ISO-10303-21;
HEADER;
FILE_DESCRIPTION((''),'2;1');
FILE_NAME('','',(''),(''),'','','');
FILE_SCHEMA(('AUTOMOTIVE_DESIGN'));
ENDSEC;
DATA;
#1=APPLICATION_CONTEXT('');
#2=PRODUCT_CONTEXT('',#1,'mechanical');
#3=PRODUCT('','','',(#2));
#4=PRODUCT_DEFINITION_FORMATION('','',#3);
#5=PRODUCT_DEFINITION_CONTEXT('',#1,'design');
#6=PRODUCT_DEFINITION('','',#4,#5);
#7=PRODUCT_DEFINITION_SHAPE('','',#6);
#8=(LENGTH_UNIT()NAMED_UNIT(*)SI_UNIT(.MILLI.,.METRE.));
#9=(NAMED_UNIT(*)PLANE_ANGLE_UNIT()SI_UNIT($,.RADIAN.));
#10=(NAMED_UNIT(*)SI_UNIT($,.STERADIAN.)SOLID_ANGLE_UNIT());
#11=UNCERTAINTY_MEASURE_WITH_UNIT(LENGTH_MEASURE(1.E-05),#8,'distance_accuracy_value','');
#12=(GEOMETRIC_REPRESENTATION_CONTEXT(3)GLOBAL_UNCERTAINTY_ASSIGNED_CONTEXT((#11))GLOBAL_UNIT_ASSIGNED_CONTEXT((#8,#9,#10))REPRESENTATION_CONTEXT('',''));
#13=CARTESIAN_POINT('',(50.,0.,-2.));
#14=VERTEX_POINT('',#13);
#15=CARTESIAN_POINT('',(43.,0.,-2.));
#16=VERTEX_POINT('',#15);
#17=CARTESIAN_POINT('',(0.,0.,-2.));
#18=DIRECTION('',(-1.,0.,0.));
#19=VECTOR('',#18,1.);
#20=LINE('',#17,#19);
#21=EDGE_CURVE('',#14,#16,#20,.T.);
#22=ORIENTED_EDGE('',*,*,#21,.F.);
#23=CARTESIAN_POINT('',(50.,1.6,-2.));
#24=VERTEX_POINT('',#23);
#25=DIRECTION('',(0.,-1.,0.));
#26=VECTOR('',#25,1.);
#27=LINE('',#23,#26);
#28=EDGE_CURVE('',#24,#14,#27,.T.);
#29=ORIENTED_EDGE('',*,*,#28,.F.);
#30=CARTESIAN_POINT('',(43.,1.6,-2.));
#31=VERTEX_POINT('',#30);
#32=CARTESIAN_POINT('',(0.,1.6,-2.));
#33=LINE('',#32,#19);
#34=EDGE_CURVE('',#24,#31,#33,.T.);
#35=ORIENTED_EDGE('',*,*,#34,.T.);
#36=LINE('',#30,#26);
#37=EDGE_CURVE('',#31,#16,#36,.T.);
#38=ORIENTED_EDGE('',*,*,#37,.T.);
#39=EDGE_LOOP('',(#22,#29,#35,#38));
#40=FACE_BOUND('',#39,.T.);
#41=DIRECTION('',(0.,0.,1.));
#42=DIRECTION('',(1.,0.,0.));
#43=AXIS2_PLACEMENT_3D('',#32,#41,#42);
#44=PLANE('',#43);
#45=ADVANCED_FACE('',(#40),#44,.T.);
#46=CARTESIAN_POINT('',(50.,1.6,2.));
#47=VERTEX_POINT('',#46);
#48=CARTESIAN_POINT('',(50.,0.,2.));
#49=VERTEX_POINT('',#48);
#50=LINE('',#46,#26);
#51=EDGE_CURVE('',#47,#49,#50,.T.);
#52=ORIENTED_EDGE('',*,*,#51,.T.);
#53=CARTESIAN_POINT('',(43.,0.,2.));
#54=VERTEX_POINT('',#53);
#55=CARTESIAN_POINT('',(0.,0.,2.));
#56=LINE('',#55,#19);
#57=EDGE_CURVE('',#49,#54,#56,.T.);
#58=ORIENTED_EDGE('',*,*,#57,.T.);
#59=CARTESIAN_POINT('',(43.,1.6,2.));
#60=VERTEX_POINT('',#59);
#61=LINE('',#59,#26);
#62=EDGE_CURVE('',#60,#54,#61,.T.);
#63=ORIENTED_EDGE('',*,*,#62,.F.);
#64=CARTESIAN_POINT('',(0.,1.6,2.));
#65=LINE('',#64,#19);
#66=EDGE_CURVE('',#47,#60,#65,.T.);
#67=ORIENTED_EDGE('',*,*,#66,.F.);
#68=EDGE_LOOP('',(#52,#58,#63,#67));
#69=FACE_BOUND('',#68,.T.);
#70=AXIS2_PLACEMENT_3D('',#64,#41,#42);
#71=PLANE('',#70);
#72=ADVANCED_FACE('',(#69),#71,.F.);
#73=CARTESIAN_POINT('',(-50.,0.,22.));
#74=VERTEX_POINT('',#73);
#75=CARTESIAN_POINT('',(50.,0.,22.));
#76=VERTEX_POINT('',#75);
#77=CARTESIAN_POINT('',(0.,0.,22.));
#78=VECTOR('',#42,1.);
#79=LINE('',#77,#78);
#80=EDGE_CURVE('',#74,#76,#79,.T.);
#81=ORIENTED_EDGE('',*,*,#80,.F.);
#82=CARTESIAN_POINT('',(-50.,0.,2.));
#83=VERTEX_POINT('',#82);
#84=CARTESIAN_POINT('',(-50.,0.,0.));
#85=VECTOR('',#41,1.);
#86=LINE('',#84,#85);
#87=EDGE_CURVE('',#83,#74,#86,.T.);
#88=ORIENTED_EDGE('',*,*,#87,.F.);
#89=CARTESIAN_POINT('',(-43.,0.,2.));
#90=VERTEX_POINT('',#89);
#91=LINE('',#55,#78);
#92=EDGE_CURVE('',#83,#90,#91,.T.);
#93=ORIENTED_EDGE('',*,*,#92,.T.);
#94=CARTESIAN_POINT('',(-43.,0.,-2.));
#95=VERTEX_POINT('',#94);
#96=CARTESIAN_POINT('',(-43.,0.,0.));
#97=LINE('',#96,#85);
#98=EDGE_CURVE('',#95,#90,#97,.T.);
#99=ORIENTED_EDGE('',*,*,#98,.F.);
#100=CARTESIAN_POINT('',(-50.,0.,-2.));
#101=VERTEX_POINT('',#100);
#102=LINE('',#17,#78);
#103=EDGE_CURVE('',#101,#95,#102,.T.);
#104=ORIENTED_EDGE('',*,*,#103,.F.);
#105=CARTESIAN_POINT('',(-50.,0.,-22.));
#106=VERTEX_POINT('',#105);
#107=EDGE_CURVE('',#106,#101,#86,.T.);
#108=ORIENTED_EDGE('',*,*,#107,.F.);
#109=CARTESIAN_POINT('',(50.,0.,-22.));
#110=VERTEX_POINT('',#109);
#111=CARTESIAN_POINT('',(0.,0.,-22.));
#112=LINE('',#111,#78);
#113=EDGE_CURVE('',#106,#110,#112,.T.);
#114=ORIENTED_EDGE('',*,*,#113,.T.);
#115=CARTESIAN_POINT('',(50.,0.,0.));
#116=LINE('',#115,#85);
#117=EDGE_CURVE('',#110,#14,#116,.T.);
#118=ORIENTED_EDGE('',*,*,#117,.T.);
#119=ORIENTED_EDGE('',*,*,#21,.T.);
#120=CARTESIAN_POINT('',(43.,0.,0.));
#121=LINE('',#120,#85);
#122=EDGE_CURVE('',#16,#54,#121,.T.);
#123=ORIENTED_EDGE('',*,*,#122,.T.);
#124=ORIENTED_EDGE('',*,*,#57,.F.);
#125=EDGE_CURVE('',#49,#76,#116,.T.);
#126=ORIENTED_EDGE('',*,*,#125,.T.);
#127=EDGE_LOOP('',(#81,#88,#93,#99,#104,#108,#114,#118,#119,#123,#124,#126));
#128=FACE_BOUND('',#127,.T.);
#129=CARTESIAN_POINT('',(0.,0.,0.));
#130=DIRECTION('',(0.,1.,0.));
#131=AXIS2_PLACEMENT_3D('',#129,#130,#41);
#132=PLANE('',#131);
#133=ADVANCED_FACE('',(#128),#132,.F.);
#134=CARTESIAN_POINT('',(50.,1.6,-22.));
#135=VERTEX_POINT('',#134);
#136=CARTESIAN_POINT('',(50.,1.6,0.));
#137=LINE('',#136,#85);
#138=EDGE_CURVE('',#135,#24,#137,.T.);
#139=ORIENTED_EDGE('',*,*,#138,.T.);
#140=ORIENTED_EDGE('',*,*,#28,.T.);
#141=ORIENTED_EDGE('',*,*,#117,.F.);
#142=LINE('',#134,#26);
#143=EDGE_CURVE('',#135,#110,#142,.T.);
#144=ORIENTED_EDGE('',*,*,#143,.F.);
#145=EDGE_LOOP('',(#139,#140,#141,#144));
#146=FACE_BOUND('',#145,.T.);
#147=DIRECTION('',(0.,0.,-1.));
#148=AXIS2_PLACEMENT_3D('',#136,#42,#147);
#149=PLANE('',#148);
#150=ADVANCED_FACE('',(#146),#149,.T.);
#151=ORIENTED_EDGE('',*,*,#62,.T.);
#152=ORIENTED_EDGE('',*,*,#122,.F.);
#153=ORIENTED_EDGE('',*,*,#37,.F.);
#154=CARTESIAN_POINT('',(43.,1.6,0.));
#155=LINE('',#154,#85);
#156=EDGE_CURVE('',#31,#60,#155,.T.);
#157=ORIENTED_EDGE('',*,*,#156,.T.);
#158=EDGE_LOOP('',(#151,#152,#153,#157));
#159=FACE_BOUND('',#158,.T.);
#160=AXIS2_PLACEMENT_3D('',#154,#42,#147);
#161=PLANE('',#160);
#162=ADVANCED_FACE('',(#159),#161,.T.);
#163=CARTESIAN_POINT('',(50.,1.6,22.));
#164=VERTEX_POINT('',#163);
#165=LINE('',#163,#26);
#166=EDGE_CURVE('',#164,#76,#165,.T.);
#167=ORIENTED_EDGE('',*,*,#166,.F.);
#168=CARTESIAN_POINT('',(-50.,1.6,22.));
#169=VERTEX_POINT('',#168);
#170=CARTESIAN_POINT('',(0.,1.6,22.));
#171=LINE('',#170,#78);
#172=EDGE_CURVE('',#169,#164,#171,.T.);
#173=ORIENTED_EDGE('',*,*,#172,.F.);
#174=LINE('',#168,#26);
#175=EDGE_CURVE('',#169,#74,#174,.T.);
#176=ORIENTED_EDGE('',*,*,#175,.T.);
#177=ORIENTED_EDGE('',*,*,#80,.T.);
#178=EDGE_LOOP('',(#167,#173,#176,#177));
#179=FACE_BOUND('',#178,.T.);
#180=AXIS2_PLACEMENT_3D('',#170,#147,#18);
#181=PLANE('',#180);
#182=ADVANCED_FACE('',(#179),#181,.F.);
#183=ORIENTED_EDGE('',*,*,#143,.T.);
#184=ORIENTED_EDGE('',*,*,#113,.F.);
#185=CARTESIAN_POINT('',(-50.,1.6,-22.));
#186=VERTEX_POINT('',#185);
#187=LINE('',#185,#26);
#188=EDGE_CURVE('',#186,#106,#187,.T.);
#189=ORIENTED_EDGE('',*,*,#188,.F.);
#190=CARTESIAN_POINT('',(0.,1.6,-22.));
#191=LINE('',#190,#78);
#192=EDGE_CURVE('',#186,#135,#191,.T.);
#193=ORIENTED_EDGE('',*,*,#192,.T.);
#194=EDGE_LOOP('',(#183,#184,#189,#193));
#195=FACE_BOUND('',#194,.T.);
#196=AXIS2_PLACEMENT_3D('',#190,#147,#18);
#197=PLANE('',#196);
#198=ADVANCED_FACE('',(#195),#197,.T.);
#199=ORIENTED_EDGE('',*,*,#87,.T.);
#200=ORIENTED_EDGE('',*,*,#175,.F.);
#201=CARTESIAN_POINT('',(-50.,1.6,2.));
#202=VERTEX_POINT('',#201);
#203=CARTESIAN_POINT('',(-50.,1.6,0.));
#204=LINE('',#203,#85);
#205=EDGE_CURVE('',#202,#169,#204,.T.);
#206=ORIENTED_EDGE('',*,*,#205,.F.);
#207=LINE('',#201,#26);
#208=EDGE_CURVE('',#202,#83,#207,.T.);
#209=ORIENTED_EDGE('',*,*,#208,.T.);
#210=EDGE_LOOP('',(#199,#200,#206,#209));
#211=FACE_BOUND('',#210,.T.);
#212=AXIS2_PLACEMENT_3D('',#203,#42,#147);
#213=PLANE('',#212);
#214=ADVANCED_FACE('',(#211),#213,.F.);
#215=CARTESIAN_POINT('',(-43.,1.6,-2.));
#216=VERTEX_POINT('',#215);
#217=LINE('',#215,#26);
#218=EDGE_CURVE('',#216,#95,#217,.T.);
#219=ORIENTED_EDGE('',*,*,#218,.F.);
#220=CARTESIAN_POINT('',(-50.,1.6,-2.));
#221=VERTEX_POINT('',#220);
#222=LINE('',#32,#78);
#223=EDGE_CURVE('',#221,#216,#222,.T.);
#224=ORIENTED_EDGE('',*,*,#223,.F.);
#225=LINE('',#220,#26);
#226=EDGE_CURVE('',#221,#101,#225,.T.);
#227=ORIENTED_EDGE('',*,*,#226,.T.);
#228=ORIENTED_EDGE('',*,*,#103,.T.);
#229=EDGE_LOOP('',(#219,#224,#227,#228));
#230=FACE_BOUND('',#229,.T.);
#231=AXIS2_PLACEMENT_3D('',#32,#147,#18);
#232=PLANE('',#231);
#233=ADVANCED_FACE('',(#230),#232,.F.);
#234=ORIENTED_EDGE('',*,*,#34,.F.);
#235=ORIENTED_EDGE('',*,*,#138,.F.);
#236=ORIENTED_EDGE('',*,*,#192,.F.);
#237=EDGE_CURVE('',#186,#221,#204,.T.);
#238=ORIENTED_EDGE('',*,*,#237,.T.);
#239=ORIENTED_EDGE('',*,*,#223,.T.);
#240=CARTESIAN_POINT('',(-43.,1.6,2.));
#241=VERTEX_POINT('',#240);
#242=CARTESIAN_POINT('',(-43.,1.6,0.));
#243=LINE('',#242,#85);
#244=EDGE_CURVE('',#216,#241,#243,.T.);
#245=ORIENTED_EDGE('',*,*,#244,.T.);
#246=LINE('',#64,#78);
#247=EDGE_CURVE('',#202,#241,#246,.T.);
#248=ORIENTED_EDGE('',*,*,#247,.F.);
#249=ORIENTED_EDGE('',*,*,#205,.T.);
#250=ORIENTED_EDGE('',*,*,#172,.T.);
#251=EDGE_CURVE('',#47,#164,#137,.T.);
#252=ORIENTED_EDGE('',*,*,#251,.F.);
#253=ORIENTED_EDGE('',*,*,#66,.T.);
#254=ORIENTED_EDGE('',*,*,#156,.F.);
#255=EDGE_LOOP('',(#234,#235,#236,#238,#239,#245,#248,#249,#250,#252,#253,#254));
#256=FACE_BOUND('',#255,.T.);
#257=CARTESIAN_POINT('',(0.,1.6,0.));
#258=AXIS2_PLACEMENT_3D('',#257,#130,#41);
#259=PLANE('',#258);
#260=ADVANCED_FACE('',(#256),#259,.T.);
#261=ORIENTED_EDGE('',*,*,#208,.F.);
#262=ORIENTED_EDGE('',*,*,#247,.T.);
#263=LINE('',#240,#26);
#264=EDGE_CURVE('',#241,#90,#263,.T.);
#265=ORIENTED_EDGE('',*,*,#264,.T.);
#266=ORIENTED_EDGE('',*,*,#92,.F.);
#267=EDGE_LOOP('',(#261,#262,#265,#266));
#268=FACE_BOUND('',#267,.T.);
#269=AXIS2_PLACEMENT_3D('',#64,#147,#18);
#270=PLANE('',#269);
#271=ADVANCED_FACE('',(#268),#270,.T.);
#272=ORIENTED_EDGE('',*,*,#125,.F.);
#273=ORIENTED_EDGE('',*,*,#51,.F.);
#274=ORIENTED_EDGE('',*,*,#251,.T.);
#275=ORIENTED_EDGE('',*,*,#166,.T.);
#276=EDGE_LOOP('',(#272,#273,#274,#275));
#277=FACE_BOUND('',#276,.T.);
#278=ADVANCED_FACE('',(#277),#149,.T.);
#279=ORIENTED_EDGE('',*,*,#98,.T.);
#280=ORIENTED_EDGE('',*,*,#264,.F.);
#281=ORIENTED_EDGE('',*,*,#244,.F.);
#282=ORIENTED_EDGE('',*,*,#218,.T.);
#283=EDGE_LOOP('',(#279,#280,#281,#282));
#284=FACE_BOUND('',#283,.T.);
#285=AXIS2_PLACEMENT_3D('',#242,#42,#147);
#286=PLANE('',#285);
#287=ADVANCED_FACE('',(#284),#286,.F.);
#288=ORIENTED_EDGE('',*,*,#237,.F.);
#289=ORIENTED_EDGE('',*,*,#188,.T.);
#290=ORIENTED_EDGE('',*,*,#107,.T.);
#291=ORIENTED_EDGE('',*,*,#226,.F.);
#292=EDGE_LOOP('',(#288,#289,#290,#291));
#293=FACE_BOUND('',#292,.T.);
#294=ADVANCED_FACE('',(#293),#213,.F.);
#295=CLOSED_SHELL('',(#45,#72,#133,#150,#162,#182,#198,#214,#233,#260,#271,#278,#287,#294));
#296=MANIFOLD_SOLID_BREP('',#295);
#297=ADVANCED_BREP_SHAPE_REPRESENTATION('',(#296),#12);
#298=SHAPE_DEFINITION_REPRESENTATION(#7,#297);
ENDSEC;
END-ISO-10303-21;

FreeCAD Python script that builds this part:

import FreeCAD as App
import Part
import Sketcher

V = App.Vector
Q = App.Units.Quantity

doc = App.newDocument("Part")
params = doc.addObject("Spreadsheet::Sheet", "Params")
for row, (alias, value) in enumerate([
    ("sketch1_width", "100 mm"),
    ("sketch1_width2", "7 mm"),
    ("sketch1_height", "20 mm"),
    ("sketch1_height2", "4 mm"),
    ("pad1_length", "1.6 mm"),
], start=1):
    params.set(f"A{row}", alias)
    params.set(f"B{row}", "=" + value)
    params.setAlias(f"B{row}", alias)

body = doc.addObject("PartDesign::Body", "Body")

# Sketch on XZ plane
sketch1 = body.newObject("Sketcher::SketchObject", "Sketch")
sketch1.AttachmentSupport = (doc.getObject("XZ_Plane"), [""])
sketch1.MapMode = "FlatFace"
sketch1.addGeometry([
    Part.LineSegment(V(50, -22, 0), V(-50, -22, 0)),  # 0
    Part.LineSegment(V(-50, -22, 0), V(-50, -2, 0)),  # 1
    Part.LineSegment(V(-50, -2, 0), V(-43, -2, 0)),  # 2
    Part.LineSegment(V(-43, -2, 0), V(-43, 2, 0)),  # 3
    Part.LineSegment(V(-43, 2, 0), V(-50, 2, 0)),  # 4
    Part.LineSegment(V(-50, 2, 0), V(-50, 22, 0)),  # 5
    Part.LineSegment(V(-50, 22, 0), V(50, 22, 0)),  # 6
    Part.LineSegment(V(50, 22, 0), V(50, 2, 0)),  # 7
    Part.LineSegment(V(50, 2, 0), V(43, 2, 0)),  # 8
    Part.LineSegment(V(43, 2, 0), V(43, -2, 0)),  # 9
    Part.LineSegment(V(43, -2, 0), V(50, -2, 0)),  # 10
    Part.LineSegment(V(50, -2, 0), V(50, -22, 0)),  # 11
], False)
sketch1.addConstraint([
    Sketcher.Constraint("Coincident", 0, 2, 1, 1),
    Sketcher.Constraint("Coincident", 1, 2, 2, 1),
    Sketcher.Constraint("Coincident", 2, 2, 3, 1),
    Sketcher.Constraint("Coincident", 3, 2, 4, 1),
    Sketcher.Constraint("Coincident", 4, 2, 5, 1),
    Sketcher.Constraint("Coincident", 5, 2, 6, 1),
    Sketcher.Constraint("Coincident", 6, 2, 7, 1),
    Sketcher.Constraint("Coincident", 7, 2, 8, 1),
    Sketcher.Constraint("Coincident", 8, 2, 9, 1),
    Sketcher.Constraint("Coincident", 9, 2, 10, 1),
    Sketcher.Constraint("Coincident", 10, 2, 11, 1),
    Sketcher.Constraint("Coincident", 11, 2, 0, 1),
    Sketcher.Constraint("Horizontal", 0),
    Sketcher.Constraint("Vertical", 1),
    Sketcher.Constraint("Horizontal", 2),
    Sketcher.Constraint("Vertical", 3),
    Sketcher.Constraint("Horizontal", 4),
    Sketcher.Constraint("Vertical", 5),
    Sketcher.Constraint("Horizontal", 6),
    Sketcher.Constraint("Vertical", 7),
    Sketcher.Constraint("Horizontal", 8),
    Sketcher.Constraint("Vertical", 9),
    Sketcher.Constraint("Horizontal", 10),
    Sketcher.Constraint("Vertical", 11),
    Sketcher.Constraint("Symmetric", 0, 2, 6, 2, -1, 1),
    Sketcher.Constraint("Symmetric", 2, 2, 8, 2, -1, 1),
    Sketcher.Constraint("Symmetric", 4, 2, 10, 2, -1, 1),
    Sketcher.Constraint("Symmetric", 4, 2, 7, 2, -2),
    Sketcher.Constraint("DistanceX", 0, 2, 0, 1, Q("100 mm")),
    Sketcher.Constraint("DistanceX", 2, 1, 2, 2, Q("7 mm")),
    Sketcher.Constraint("DistanceY", 1, 1, 1, 2, Q("20 mm")),
    Sketcher.Constraint("DistanceY", 3, 1, 3, 2, Q("4 mm")),
])
sketch1.setExpression("Constraints[28]", "Params.sketch1_width")
sketch1.setExpression("Constraints[29]", "Params.sketch1_width2")
sketch1.setExpression("Constraints[30]", "Params.sketch1_height")
sketch1.setExpression("Constraints[31]", "Params.sketch1_height2")
pad1 = body.newObject("PartDesign::Pad", "Pad")
pad1.Profile = sketch1
pad1.setExpression("Length", "Params.pad1_length")
pad1.Reversed = True

doc.recompute()
